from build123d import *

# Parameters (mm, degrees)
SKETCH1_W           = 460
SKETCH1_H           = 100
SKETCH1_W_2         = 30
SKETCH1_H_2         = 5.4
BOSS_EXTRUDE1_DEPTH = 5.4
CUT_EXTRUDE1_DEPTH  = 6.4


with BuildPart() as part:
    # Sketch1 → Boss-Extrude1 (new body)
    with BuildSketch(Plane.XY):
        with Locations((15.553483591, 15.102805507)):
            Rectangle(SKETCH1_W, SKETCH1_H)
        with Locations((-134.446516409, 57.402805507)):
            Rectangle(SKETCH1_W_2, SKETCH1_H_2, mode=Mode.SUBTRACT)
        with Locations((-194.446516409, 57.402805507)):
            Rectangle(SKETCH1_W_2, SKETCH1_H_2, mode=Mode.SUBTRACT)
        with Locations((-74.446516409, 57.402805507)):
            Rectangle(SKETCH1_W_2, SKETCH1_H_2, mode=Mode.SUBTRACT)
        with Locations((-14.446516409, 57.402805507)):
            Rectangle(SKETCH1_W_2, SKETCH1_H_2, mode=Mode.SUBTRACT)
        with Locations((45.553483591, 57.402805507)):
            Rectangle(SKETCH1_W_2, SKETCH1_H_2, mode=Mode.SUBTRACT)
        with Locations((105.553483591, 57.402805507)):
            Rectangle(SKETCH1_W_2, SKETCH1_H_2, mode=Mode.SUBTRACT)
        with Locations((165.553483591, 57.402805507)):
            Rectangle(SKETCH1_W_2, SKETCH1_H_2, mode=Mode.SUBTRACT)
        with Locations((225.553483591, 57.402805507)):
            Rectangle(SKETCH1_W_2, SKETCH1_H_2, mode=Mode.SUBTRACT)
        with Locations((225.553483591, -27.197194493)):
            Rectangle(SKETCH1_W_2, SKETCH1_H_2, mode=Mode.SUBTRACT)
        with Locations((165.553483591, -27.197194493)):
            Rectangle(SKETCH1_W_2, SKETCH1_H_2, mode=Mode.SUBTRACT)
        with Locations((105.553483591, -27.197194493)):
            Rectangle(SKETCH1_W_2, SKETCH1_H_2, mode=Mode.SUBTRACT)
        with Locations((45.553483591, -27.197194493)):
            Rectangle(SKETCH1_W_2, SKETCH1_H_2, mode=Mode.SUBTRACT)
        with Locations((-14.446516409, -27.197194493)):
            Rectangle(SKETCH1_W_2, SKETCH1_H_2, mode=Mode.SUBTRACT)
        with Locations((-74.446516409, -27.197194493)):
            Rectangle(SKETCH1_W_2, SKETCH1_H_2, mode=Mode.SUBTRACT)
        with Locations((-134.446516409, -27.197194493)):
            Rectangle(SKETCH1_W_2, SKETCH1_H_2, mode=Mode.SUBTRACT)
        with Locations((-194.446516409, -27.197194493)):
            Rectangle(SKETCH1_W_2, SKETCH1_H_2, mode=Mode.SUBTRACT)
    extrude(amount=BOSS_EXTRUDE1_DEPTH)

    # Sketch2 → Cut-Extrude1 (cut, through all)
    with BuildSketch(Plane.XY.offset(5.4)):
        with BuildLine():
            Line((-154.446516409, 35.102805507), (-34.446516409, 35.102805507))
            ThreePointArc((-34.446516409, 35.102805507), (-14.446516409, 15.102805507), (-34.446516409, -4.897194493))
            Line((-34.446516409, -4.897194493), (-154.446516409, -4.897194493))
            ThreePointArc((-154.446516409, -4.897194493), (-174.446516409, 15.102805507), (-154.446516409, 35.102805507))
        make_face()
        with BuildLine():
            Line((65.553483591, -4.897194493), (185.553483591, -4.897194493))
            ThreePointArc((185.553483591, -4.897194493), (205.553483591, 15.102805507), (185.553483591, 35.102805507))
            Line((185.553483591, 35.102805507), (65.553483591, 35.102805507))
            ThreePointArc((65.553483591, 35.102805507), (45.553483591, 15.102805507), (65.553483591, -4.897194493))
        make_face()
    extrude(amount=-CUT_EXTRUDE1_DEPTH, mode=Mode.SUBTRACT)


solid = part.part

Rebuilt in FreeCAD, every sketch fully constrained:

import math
import FreeCAD as App
import Part
import Sketcher
Q = App.Units.Quantity


def add_polygon(sketch, points):
    """Adds a closed chain of lines whose ends are joined by coincident constraints."""
    first, n = sketch.GeometryCount, len(points)
    for a, b in zip(points, points[1:] + points[:1]):
        sketch.addGeometry(Part.LineSegment(App.Vector(*a, 0), App.Vector(*b, 0)), False)
    for i in range(n):
        sketch.addConstraint(Sketcher.Constraint("Coincident", first + i, 2, first + (i + 1) % n, 1))

doc = App.newDocument("Part")
body = doc.addObject("PartDesign::Body", "Body")

sketch1 = body.newObject("Sketcher::SketchObject", "Sketch")
sketch1.AttachmentSupport = (doc.getObject("XY_Plane"), [""])
sketch1.MapMode = "FlatFace"
add_polygon(sketch1, [(-214, 65), (-214, -35), (246, -35), (246, 65)])
add_polygon(sketch1, [(-179, -30), (-209, -30), (-209, -24), (-179, -24)])
add_polygon(sketch1, [(-119, -30), (-149, -30), (-149, -24), (-119, -24)])
add_polygon(sketch1, [(-59, -30), (-89, -30), (-89, -24), (-59, -24)])
add_polygon(sketch1, [(1, -30), (-29, -30), (-29, -24), (1, -24)])
add_polygon(sketch1, [(61, -30), (31, -30), (31, -24), (61, -24)])
add_polygon(sketch1, [(121, -30), (91, -30), (91, -24), (121, -24)])
add_polygon(sketch1, [(181, -30), (151, -30), (151, -24), (181, -24)])
add_polygon(sketch1, [(241, -30), (211, -30), (211, -24), (241, -24)])
add_polygon(sketch1, [(-179, 55), (-209, 55), (-209, 60), (-179, 60)])
add_polygon(sketch1, [(-119, 55), (-149, 55), (-149, 60), (-119, 60)])
add_polygon(sketch1, [(-59, 55), (-89, 55), (-89, 60), (-59, 60)])
add_polygon(sketch1, [(1, 55), (-29, 55), (-29, 60), (1, 60)])
add_polygon(sketch1, [(61, 55), (31, 55), (31, 60), (61, 60)])
add_polygon(sketch1, [(121, 55), (91, 55), (91, 60), (121, 60)])
add_polygon(sketch1, [(181, 55), (151, 55), (151, 60), (181, 60)])
add_polygon(sketch1, [(241, 55), (211, 55), (211, 60), (241, 60)])
sketch1.addConstraint(Sketcher.Constraint("Vertical", 0))
sketch1.addConstraint(Sketcher.Constraint("Horizontal", 1))
sketch1.addConstraint(Sketcher.Constraint("Vertical", 2))
sketch1.addConstraint(Sketcher.Constraint("Horizontal", 3))
sketch1.addConstraint(Sketcher.Constraint("Horizontal", 4))
sketch1.addConstraint(Sketcher.Constraint("Vertical", 5))
sketch1.addConstraint(Sketcher.Constraint("Horizontal", 6))
sketch1.addConstraint(Sketcher.Constraint("Vertical", 7))
sketch1.addConstraint(Sketcher.Constraint("Horizontal", 8))
sketch1.addConstraint(Sketcher.Constraint("Vertical", 9))
sketch1.addConstraint(Sketcher.Constraint("Horizontal", 10))
sketch1.addConstraint(Sketcher.Constraint("Vertical", 11))
sketch1.addConstraint(Sketcher.Constraint("Horizontal", 12))
sketch1.addConstraint(Sketcher.Constraint("Vertical", 13))
sketch1.addConstraint(Sketcher.Constraint("Horizontal", 14))
sketch1.addConstraint(Sketcher.Constraint("Vertical", 15))
sketch1.addConstraint(Sketcher.Constraint("Horizontal", 16))
sketch1.addConstraint(Sketcher.Constraint("Vertical", 17))
sketch1.addConstraint(Sketcher.Constraint("Horizontal", 18))
sketch1.addConstraint(Sketcher.Constraint("Vertical", 19))
sketch1.addConstraint(Sketcher.Constraint("Horizontal", 20))
sketch1.addConstraint(Sketcher.Constraint("Vertical", 21))
sketch1.addConstraint(Sketcher.Constraint("Horizontal", 22))
sketch1.addConstraint(Sketcher.Constraint("Vertical", 23))
sketch1.addConstraint(Sketcher.Constraint("Horizontal", 24))
sketch1.addConstraint(Sketcher.Constraint("Vertical", 25))
sketch1.addConstraint(Sketcher.Constraint("Horizontal", 26))
sketch1.addConstraint(Sketcher.Constraint("Vertical", 27))
sketch1.addConstraint(Sketcher.Constraint("Horizontal", 28))
sketch1.addConstraint(Sketcher.Constraint("Vertical", 29))
sketch1.addConstraint(Sketcher.Constraint("Horizontal", 30))
sketch1.addConstraint(Sketcher.Constraint("Vertical", 31))
sketch1.addConstraint(Sketcher.Constraint("Horizontal", 32))
sketch1.addConstraint(Sketcher.Constraint("Vertical", 33))
sketch1.addConstraint(Sketcher.Constraint("Horizontal", 34))
sketch1.addConstraint(Sketcher.Constraint("Vertical", 35))
sketch1.addConstraint(Sketcher.Constraint("Horizontal", 36))
sketch1.addConstraint(Sketcher.Constraint("Vertical", 37))
sketch1.addConstraint(Sketcher.Constraint("Horizontal", 38))
sketch1.addConstraint(Sketcher.Constraint("Vertical", 39))
sketch1.addConstraint(Sketcher.Constraint("Horizontal", 40))
sketch1.addConstraint(Sketcher.Constraint("Vertical", 41))
sketch1.addConstraint(Sketcher.Constraint("Horizontal", 42))
sketch1.addConstraint(Sketcher.Constraint("Vertical", 43))
sketch1.addConstraint(Sketcher.Constraint("Horizontal", 44))
sketch1.addConstraint(Sketcher.Constraint("Vertical", 45))
sketch1.addConstraint(Sketcher.Constraint("Horizontal", 46))
sketch1.addConstraint(Sketcher.Constraint("Vertical", 47))
sketch1.addConstraint(Sketcher.Constraint("Horizontal", 48))
sketch1.addConstraint(Sketcher.Constraint("Vertical", 49))
sketch1.addConstraint(Sketcher.Constraint("Horizontal", 50))
sketch1.addConstraint(Sketcher.Constraint("Vertical", 51))
sketch1.addConstraint(Sketcher.Constraint("Horizontal", 52))
sketch1.addConstraint(Sketcher.Constraint("Vertical", 53))
sketch1.addConstraint(Sketcher.Constraint("Horizontal", 54))
sketch1.addConstraint(Sketcher.Constraint("Vertical", 55))
sketch1.addConstraint(Sketcher.Constraint("Horizontal", 56))
sketch1.addConstraint(Sketcher.Constraint("Vertical", 57))
sketch1.addConstraint(Sketcher.Constraint("Horizontal", 58))
sketch1.addConstraint(Sketcher.Constraint("Vertical", 59))
sketch1.addConstraint(Sketcher.Constraint("Horizontal", 60))
sketch1.addConstraint(Sketcher.Constraint("Vertical", 61))
sketch1.addConstraint(Sketcher.Constraint("Horizontal", 62))
sketch1.addConstraint(Sketcher.Constraint("Vertical", 63))
sketch1.addConstraint(Sketcher.Constraint("Horizontal", 64))
sketch1.addConstraint(Sketcher.Constraint("Vertical", 65))
sketch1.addConstraint(Sketcher.Constraint("Horizontal", 66))
sketch1.addConstraint(Sketcher.Constraint("Vertical", 67))
sketch1.addConstraint(Sketcher.Constraint("Horizontal", 7, 2, 8, 2))
sketch1.addConstraint(Sketcher.Constraint("Horizontal", 6, 2, 9, 2))
sketch1.addConstraint(Sketcher.Constraint("Horizontal", 11, 2, 12, 2))
sketch1.addConstraint(Sketcher.Constraint("Horizontal", 10, 2, 13, 2))
sketch1.addConstraint(Sketcher.Constraint("Horizontal", 15, 2, 16, 2))
sketch1.addConstraint(Sketcher.Constraint("Horizontal", 14, 2, 17, 2))
sketch1.addConstraint(Sketcher.Constraint("Horizontal", 19, 2, 20, 2))
sketch1.addConstraint(Sketcher.Constraint("Horizontal", 18, 2, 21, 2))
sketch1.addConstraint(Sketcher.Constraint("Horizontal", 23, 2, 24, 2))
sketch1.addConstraint(Sketcher.Constraint("Horizontal", 22, 2, 25, 2))
sketch1.addConstraint(Sketcher.Constraint("Horizontal", 27, 2, 28, 2))
sketch1.addConstraint(Sketcher.Constraint("Horizontal", 26, 2, 29, 2))
sketch1.addConstraint(Sketcher.Constraint("Horizontal", 31, 2, 32, 2))
sketch1.addConstraint(Sketcher.Constraint("Horizontal", 30, 2, 33, 2))
sketch1.addConstraint(Sketcher.Constraint("Horizontal", 39, 2, 40, 2))
sketch1.addConstraint(Sketcher.Constraint("Horizontal", 38, 2, 41, 2))
sketch1.addConstraint(Sketcher.Constraint("Horizontal", 43, 2, 44, 2))
sketch1.addConstraint(Sketcher.Constraint("Horizontal", 42, 2, 45, 2))
sketch1.addConstraint(Sketcher.Constraint("Horizontal", 47, 2, 48, 2))
sketch1.addConstraint(Sketcher.Constraint("Horizontal", 46, 2, 49, 2))
sketch1.addConstraint(Sketcher.Constraint("Horizontal", 51, 2, 52, 2))
sketch1.addConstraint(Sketcher.Constraint("Horizontal", 50, 2, 53, 2))
sketch1.addConstraint(Sketcher.Constraint("Horizontal", 55, 2, 56, 2))
sketch1.addConstraint(Sketcher.Constraint("Horizontal", 54, 2, 57, 2))
sketch1.addConstraint(Sketcher.Constraint("Horizontal", 59, 2, 60, 2))
sketch1.addConstraint(Sketcher.Constraint("Horizontal", 58, 2, 61, 2))
sketch1.addConstraint(Sketcher.Constraint("Horizontal", 63, 2, 64, 2))
sketch1.addConstraint(Sketcher.Constraint("Horizontal", 62, 2, 65, 2))
sketch1.addConstraint(Sketcher.Constraint("Vertical", 5, 2, 36, 2))
sketch1.addConstraint(Sketcher.Constraint("Vertical", 7, 2, 38, 2))
sketch1.addConstraint(Sketcher.Constraint("Vertical", 9, 2, 40, 2))
sketch1.addConstraint(Sketcher.Constraint("Vertical", 11, 2, 42, 2))
sketch1.addConstraint(Sketcher.Constraint("Vertical", 13, 2, 44, 2))
sketch1.addConstraint(Sketcher.Constraint("Vertical", 15, 2, 46, 2))
sketch1.addConstraint(Sketcher.Constraint("Vertical", 17, 2, 48, 2))
sketch1.addConstraint(Sketcher.Constraint("Vertical", 19, 2, 50, 2))
sketch1.addConstraint(Sketcher.Constraint("Vertical", 21, 2, 52, 2))
sketch1.addConstraint(Sketcher.Constraint("Vertical", 23, 2, 54, 2))
sketch1.addConstraint(Sketcher.Constraint("Vertical", 25, 2, 56, 2))
sketch1.addConstraint(Sketcher.Constraint("Vertical", 27, 2, 58, 2))
sketch1.addConstraint(Sketcher.Constraint("Vertical", 29, 2, 60, 2))
sketch1.addConstraint(Sketcher.Constraint("Vertical", 31, 2, 62, 2))
sketch1.addConstraint(Sketcher.Constraint("Vertical", 33, 2, 64, 2))
sketch1.addConstraint(Sketcher.Constraint("Vertical", 35, 2, 66, 2))
sketch1.addConstraint(Sketcher.Constraint("Equal", 6, 8))
sketch1.addConstraint(Sketcher.Constraint("Equal", 10, 12))
sketch1.addConstraint(Sketcher.Constraint("Equal", 14, 16))
sketch1.addConstraint(Sketcher.Constraint("Equal", 18, 20))
sketch1.addConstraint(Sketcher.Constraint("Equal", 22, 24))
sketch1.addConstraint(Sketcher.Constraint("Equal", 26, 28))
sketch1.addConstraint(Sketcher.Constraint("Equal", 30, 32))
sketch1.addConstraint(Sketcher.Constraint("Equal", 35, 37))
sketch1.addConstraint(Sketcher.Constraint("DistanceX", 1, 1, 1, 2, Q("460 mm")))
sketch1.addConstraint(Sketcher.Constraint("DistanceX", 4, 2, 4, 1, Q("30 mm")))
sketch1.addConstraint(Sketcher.Constraint("DistanceY", 0, 2, 0, 1, Q("100 mm")))
sketch1.addConstraint(Sketcher.Constraint("DistanceY", 5, 1, 5, 2, Q("5.4 mm")))
sketch1.addConstraint(Sketcher.Constraint("DistanceX", 0, 2, -1, 1, Q("214.446516 mm")))
sketch1.addConstraint(Sketcher.Constraint("DistanceY", 0, 2, -1, 1, Q("34.897194 mm")))
sketch1.addConstraint(Sketcher.Constraint("DistanceX", 4, 2, -1, 1, Q("209.446516 mm")))
sketch1.addConstraint(Sketcher.Constraint("DistanceY", 4, 2, -1, 1, Q("29.897194 mm")))
sketch1.addConstraint(Sketcher.Constraint("DistanceX", 8, 2, -1, 1, Q("149.446516 mm")))
sketch1.addConstraint(Sketcher.Constraint("DistanceX", 12, 2, -1, 1, Q("89.446516 mm")))
sketch1.addConstraint(Sketcher.Constraint("DistanceX", 16, 2, -1, 1, Q("29.446516 mm")))
sketch1.addConstraint(Sketcher.Constraint("DistanceX", -1, 1, 20, 2, Q("30.553484 mm")))
sketch1.addConstraint(Sketcher.Constraint("DistanceX", -1, 1, 24, 2, Q("90.553484 mm")))
sketch1.addConstraint(Sketcher.Constraint("DistanceX", -1, 1, 28, 2, Q("150.553484 mm")))
sketch1.addConstraint(Sketcher.Constraint("DistanceX", -1, 1, 32, 2, Q("210.553484 mm")))
sketch1.addConstraint(Sketcher.Constraint("DistanceY", -1, 1, 36, 2, Q("54.702806 mm")))
pad1 = body.newObject("PartDesign::Pad", "Pad")
pad1.Profile = sketch1
pad1.Length = 5.4

sketch2 = body.newObject("Sketcher::SketchObject", "Sketch001")
sketch2.AttachmentSupport = (doc.getObject("XY_Plane"), [""])
sketch2.MapMode = "FlatFace"
sketch2.AttachmentOffset = App.Placement(App.Vector(0, 0, 5.4), App.Rotation())
sketch2.addGeometry(Part.LineSegment(App.Vector(-34, 35, 0), App.Vector(-154, 35, 0)), False)
sketch2.addGeometry(Part.ArcOfCircle(Part.Circle(App.Vector(-154, 15, 0), App.Vector(0, 0, 1), 20), math.radians(90), math.radians(270)), False)
sketch2.addGeometry(Part.LineSegment(App.Vector(-154, -5, 0), App.Vector(-34, -5, 0)), False)
sketch2.addGeometry(Part.ArcOfCircle(Part.Circle(App.Vector(-34, 15, 0), App.Vector(0, 0, 1), 20), math.radians(-90), math.radians(90)), False)
sketch2.addGeometry(Part.LineSegment(App.Vector(66, -5, 0), App.Vector(186, -5, 0)), False)
sketch2.addGeometry(Part.ArcOfCircle(Part.Circle(App.Vector(186, 15, 0), App.Vector(0, 0, 1), 20), math.radians(-90), math.radians(90)), False)
sketch2.addGeometry(Part.LineSegment(App.Vector(186, 35, 0), App.Vector(66, 35, 0)), False)
sketch2.addGeometry(Part.ArcOfCircle(Part.Circle(App.Vector(66, 15, 0), App.Vector(0, 0, 1), 20), math.radians(90), math.radians(270)), False)
sketch2.addConstraint(Sketcher.Constraint("Tangent", 0, 2, 1, 1))
sketch2.addConstraint(Sketcher.Constraint("Tangent", 1, 2, 2, 1))
sketch2.addConstraint(Sketcher.Constraint("Tangent", 2, 2, 3, 1))
sketch2.addConstraint(Sketcher.Constraint("Tangent", 3, 2, 0, 1))
sketch2.addConstraint(Sketcher.Constraint("Tangent", 4, 2, 5, 1))
sketch2.addConstraint(Sketcher.Constraint("Tangent", 5, 2, 6, 1))
sketch2.addConstraint(Sketcher.Constraint("Tangent", 6, 2, 7, 1))
sketch2.addConstraint(Sketcher.Constraint("Tangent", 7, 2, 4, 1))
sketch2.addConstraint(Sketcher.Constraint("Horizontal", 0))
sketch2.addConstraint(Sketcher.Constraint("Horizontal", 2))
sketch2.addConstraint(Sketcher.Constraint("Horizontal", 4))
sketch2.addConstraint(Sketcher.Constraint("Horizontal", 6))
sketch2.addConstraint(Sketcher.Constraint("Equal", 3, 5))
sketch2.addConstraint(Sketcher.Constraint("Horizontal", 3, 3, 5, 3))
sketch2.addConstraint(Sketcher.Constraint("Equal", 2, 4))
sketch2.addConstraint(Sketcher.Constraint("Radius", 1, Q("20 mm")))
sketch2.addConstraint(Sketcher.Constraint("DistanceX", 0, 2, 0, 1, Q("120 mm")))
sketch2.addConstraint(Sketcher.Constraint("DistanceX", 3, 3, 5, 3, Q("220 mm")))
sketch2.addConstraint(Sketcher.Constraint("DistanceX", 1, 3, -1, 1, Q("154.446516 mm")))
sketch2.addConstraint(Sketcher.Constraint("DistanceY", -1, 1, 1, 3, Q("15.102806 mm")))
pocket1 = body.newObject("PartDesign::Pocket", "Pocket")
pocket1.Profile = sketch2
pocket1.Type = "ThroughAll"

doc.recompute()
